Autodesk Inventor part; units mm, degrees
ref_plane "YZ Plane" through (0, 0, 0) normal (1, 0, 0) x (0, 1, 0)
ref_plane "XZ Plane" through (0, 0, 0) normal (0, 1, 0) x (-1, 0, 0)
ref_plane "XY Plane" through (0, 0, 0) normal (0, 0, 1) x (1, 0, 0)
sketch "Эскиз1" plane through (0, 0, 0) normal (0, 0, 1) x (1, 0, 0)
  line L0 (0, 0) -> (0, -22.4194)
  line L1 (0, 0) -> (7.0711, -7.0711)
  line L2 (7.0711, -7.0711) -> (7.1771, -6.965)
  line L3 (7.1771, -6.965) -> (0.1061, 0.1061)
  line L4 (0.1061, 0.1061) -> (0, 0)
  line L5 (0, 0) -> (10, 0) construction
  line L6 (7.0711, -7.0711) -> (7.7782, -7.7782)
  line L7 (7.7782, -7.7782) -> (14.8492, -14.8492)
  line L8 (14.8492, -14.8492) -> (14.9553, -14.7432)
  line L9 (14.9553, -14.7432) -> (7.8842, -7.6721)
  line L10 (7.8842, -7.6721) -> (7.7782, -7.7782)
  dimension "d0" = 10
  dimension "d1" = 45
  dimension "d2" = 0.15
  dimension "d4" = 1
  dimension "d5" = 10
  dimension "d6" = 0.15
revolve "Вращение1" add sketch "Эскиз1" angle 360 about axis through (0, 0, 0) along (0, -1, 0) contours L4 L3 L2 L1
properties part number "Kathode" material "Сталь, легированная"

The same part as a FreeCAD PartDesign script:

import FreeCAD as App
import Part
import Sketcher

V = App.Vector
Q = App.Units.Quantity


def add_polygon(sketch, points):
    """Adds a closed chain of lines whose ends are joined by coincident constraints."""
    first, n = sketch.GeometryCount, len(points)
    for a, b in zip(points, points[1:] + points[:1]):
        sketch.addGeometry(Part.LineSegment(App.Vector(*a, 0), App.Vector(*b, 0)), False)
    for i in range(n):
        sketch.addConstraint(Sketcher.Constraint("Coincident", first + i, 2, first + (i + 1) % n, 1))

doc = App.newDocument("Part")
body = doc.addObject("PartDesign::Body", "Body")

# Sketch on XY plane
sketch1 = body.newObject("Sketcher::SketchObject", "Sketch")
sketch1.AttachmentSupport = (doc.getObject("XY_Plane"), [""])
sketch1.MapMode = "FlatFace"
add_polygon(sketch1, [(0.1061, 0.1061), (0, 0), (7.0711, -7.0711), (7.1771, -6.965)])  # lines 0-3
sketch1.addConstraint(Sketcher.Constraint("Coincident", 0, 2, -1, 1))
sketch1.addConstraint(Sketcher.Constraint("Perpendicular", 0, 1))
sketch1.addConstraint(Sketcher.Constraint("Perpendicular", 1, 2))
sketch1.addConstraint(Sketcher.Constraint("Perpendicular", 2, 3))
sketch1.addConstraint(Sketcher.Constraint("Angle", 1, Q("-45 deg")))
sketch1.addConstraint(Sketcher.Constraint("Distance", 1, Q("10 mm")))
sketch1.addConstraint(Sketcher.Constraint("Distance", 0, Q("0.15 mm")))
revolution = body.newObject("PartDesign::Revolution", "Revolution")
revolution.Profile = sketch1
revolution.ReferenceAxis = (sketch1, ["V_Axis"])
revolution.Angle = 360

doc.recompute()
